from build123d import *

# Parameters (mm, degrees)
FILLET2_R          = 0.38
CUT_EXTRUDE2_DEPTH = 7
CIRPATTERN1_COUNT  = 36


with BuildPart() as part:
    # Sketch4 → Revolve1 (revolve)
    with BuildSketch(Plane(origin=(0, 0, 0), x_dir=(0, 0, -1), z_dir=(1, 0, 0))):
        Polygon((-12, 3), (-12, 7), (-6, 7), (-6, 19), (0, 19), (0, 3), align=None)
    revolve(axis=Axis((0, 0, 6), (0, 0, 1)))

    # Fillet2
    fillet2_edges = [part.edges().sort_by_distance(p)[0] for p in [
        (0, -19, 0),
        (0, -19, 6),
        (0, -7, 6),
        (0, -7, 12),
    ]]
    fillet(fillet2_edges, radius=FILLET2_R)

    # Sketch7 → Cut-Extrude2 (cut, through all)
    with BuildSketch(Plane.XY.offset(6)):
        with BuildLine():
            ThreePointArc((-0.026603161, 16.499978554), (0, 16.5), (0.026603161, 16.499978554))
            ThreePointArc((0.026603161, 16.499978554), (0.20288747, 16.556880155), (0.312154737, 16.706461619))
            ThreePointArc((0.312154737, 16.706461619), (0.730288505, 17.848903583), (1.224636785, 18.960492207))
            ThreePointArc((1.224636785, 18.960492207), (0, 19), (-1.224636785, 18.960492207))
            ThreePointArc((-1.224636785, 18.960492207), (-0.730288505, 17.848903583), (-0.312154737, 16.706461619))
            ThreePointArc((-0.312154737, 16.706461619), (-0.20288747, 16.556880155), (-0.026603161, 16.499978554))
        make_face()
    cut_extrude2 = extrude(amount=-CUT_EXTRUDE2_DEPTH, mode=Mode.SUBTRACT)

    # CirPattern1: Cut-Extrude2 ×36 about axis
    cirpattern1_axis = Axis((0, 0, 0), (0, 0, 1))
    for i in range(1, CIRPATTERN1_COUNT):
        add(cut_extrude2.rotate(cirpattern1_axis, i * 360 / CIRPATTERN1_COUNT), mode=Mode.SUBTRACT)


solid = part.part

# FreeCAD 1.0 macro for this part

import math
import FreeCAD as App
import Part
import Sketcher

V = App.Vector


def edges_at(feature, points):
    """Names of the edges that pass closest to the given points."""
    edges = feature.Shape.Edges
    near = lambda p: min(range(len(edges)), key=lambda i: edges[i].distToShape(Part.Vertex(*p))[0])
    return sorted({f"Edge{near(p) + 1}" for p in points})


def add_polygon(sketch, points):
    """Adds a closed chain of lines whose ends are joined by coincident constraints."""
    first, n = sketch.GeometryCount, len(points)
    for a, b in zip(points, points[1:] + points[:1]):
        sketch.addGeometry(Part.LineSegment(App.Vector(*a, 0), App.Vector(*b, 0)), False)
    for i in range(n):
        sketch.addConstraint(Sketcher.Constraint("Coincident", first + i, 2, first + (i + 1) % n, 1))

doc = App.newDocument("Part")
params = doc.addObject("Spreadsheet::Sheet", "Params")
for row, (alias, value) in enumerate([
    ("sketch1_width", "4 mm"),
    ("sketch1_width2", "16 mm"),
    ("revolution_angle", "360 deg"),
    ("fillet_radius", "0.38 mm"),
    ("sketch2_radius", "18 mm"),
    ("sketch2_radius2", "19 mm"),
    ("sketch2_radius3", "18 mm"),
], start=1):
    params.set(f"A{row}", alias)
    params.set(f"B{row}", "=" + value)
    params.setAlias(f"B{row}", alias)

body = doc.addObject("PartDesign::Body", "Body")

sketch1 = body.newObject("Sketcher::SketchObject", "Sketch")
sketch1.AttachmentSupport = (doc.getObject("YZ_Plane"), [""])
sketch1.MapMode = "FlatFace"
add_polygon(sketch1, [(7, 12), (3, 12), (3, 0), (19, 0), (19, 6), (7, 6)])
sketch1.addConstraint([
    Sketcher.Constraint("Horizontal", 0),
    Sketcher.Constraint("Vertical", 1),
    Sketcher.Constraint("Horizontal", 2),
    Sketcher.Constraint("Vertical", 3),
    Sketcher.Constraint("Horizontal", 4),
    Sketcher.Constraint("Vertical", 5),
    Sketcher.Constraint("PointOnObject", 1, 2, -1),
    Sketcher.Constraint("Equal", 4, 1),
    Sketcher.Constraint("Equal", 3, 5),
    Sketcher.Constraint("DistanceX", 0, 2, 0, 1, 4.0),
    Sketcher.Constraint("DistanceX", 2, 1, 2, 2, 16.0),
    Sketcher.Constraint("DistanceX", -1, 1, 0, 2, 3.0),
])
sketch1.setExpression("Constraints[15]", "Params.sketch1_width")
sketch1.setExpression("Constraints[16]", "Params.sketch1_width2")
revolution = body.newObject("PartDesign::Revolution", "Revolution")
revolution.Profile = sketch1
revolution.ReferenceAxis = (sketch1, ["V_Axis"])
revolution.setExpression("Angle", "Params.revolution_angle")
doc.recompute()

fillet = body.newObject("PartDesign::Fillet", "Fillet")
fillet.Base = (revolution, edges_at(revolution, [
    (0, -19, 0),
    (0, -19, 6),
    (0, -7, 6),
    (0, -7, 12),
]))
fillet.setExpression("Radius", "Params.fillet_radius")

sketch2 = body.newObject("Sketcher::SketchObject", "Sketch001")
sketch2.AttachmentSupport = (doc.getObject("XY_Plane"), [""])
sketch2.MapMode = "FlatFace"
sketch2.AttachmentOffset = App.Placement(V(0, 0, 6), App.Rotation())
sketch2.addGeometry([
    Part.ArcOfCircle(Part.Circle(V(0, -0.000248, 0), V(0, 0, 1), 16.500248), math.radians(89.907623), math.radians(90.092377)),
    Part.ArcOfCircle(Part.Circle(V(0.027087, 16.8, 0), V(0, 0, 1), 0.300022), math.radians(-90.092379), math.radians(-18.166048)),
    Part.ArcOfCircle(Part.Circle(V(17.41498, 11.094567, 0), V(0, 0, 1), 18), math.radians(154.087639), math.radians(161.833952)),
    Part.ArcOfCircle(Part.Circle(V(0, 0, 0), V(0, 0, 1), 19), math.radians(86.304463), math.radians(93.695537)),
    Part.ArcOfCircle(Part.Circle(V(-17.41498, 11.094567, 0), V(0, 0, 1), 18), math.radians(18.166048), math.radians(25.912361)),
    Part.ArcOfCircle(Part.Circle(V(-0.027087, 16.8, 0), V(0, 0, 1), 0.300022), math.radians(-161.833952), math.radians(-89.907621)),
], False)
sketch2.addConstraint([
    Sketcher.Constraint("Coincident", 0, 1, 1, 1),
    Sketcher.Constraint("Coincident", 1, 2, 2, 2),
    Sketcher.Constraint("Coincident", 2, 1, 3, 1),
    Sketcher.Constraint("Coincident", 3, 2, 4, 2),
    Sketcher.Constraint("Coincident", 4, 1, 5, 1),
    Sketcher.Constraint("Coincident", 5, 2, 0, 2),
    Sketcher.Constraint("Coincident", 3, 3, -1, 1),
    Sketcher.Constraint("PointOnObject", 0, 3, -2),
    Sketcher.Constraint("Radius", 2, 18.0),
    Sketcher.Constraint("Radius", 3, 19.0),
    Sketcher.Constraint("Radius", 4, 18.0),
    Sketcher.Constraint("DistanceY", -1, 1, 1, 3, 16.8),
    Sketcher.Constraint("DistanceY", -1, 1, 5, 3, 16.8),
    Sketcher.Constraint("Radius", 1, 0.300022),
    Sketcher.Constraint("Radius", 0, 16.500248),
    Sketcher.Constraint("DistanceX", -1, 1, 2, 3, 17.41498),
    Sketcher.Constraint("DistanceX", 4, 3, -1, 1, 17.41498),
    Sketcher.Constraint("DistanceY", -1, 1, 1, 2, 16.706462),
    Sketcher.Constraint("DistanceY", -1, 1, 4, 1, 16.706462),
    Sketcher.Constraint("DistanceX", 5, 3, 0, 1, 0.05369),
    Sketcher.Constraint("DistanceY", 2, 3, 0, 1, 5.405412),
    Sketcher.Constraint("DistanceX", 5, 3, 1, 2, 0.339242),
    Sketcher.Constraint("DistanceX", 5, 2, 1, 3, 0.05369),
])
sketch2.setExpression("Constraints[8]", "Params.sketch2_radius")
sketch2.setExpression("Constraints[9]", "Params.sketch2_radius2")
sketch2.setExpression("Constraints[10]", "Params.sketch2_radius3")
pocket1 = body.newObject("PartDesign::Pocket", "Pocket")
pocket1.Profile = sketch2
pocket1.Type = "ThroughAll"
doc.recompute()

polarpattern = body.newObject("PartDesign::PolarPattern", "PolarPattern")
polarpattern.Originals = [pocket1]
polarpattern.Axis = (doc.getObject("Z_Axis"), [""])
polarpattern.Angle = 360
polarpattern.Occurrences = 36
body.Tip = polarpattern

doc.recompute()
